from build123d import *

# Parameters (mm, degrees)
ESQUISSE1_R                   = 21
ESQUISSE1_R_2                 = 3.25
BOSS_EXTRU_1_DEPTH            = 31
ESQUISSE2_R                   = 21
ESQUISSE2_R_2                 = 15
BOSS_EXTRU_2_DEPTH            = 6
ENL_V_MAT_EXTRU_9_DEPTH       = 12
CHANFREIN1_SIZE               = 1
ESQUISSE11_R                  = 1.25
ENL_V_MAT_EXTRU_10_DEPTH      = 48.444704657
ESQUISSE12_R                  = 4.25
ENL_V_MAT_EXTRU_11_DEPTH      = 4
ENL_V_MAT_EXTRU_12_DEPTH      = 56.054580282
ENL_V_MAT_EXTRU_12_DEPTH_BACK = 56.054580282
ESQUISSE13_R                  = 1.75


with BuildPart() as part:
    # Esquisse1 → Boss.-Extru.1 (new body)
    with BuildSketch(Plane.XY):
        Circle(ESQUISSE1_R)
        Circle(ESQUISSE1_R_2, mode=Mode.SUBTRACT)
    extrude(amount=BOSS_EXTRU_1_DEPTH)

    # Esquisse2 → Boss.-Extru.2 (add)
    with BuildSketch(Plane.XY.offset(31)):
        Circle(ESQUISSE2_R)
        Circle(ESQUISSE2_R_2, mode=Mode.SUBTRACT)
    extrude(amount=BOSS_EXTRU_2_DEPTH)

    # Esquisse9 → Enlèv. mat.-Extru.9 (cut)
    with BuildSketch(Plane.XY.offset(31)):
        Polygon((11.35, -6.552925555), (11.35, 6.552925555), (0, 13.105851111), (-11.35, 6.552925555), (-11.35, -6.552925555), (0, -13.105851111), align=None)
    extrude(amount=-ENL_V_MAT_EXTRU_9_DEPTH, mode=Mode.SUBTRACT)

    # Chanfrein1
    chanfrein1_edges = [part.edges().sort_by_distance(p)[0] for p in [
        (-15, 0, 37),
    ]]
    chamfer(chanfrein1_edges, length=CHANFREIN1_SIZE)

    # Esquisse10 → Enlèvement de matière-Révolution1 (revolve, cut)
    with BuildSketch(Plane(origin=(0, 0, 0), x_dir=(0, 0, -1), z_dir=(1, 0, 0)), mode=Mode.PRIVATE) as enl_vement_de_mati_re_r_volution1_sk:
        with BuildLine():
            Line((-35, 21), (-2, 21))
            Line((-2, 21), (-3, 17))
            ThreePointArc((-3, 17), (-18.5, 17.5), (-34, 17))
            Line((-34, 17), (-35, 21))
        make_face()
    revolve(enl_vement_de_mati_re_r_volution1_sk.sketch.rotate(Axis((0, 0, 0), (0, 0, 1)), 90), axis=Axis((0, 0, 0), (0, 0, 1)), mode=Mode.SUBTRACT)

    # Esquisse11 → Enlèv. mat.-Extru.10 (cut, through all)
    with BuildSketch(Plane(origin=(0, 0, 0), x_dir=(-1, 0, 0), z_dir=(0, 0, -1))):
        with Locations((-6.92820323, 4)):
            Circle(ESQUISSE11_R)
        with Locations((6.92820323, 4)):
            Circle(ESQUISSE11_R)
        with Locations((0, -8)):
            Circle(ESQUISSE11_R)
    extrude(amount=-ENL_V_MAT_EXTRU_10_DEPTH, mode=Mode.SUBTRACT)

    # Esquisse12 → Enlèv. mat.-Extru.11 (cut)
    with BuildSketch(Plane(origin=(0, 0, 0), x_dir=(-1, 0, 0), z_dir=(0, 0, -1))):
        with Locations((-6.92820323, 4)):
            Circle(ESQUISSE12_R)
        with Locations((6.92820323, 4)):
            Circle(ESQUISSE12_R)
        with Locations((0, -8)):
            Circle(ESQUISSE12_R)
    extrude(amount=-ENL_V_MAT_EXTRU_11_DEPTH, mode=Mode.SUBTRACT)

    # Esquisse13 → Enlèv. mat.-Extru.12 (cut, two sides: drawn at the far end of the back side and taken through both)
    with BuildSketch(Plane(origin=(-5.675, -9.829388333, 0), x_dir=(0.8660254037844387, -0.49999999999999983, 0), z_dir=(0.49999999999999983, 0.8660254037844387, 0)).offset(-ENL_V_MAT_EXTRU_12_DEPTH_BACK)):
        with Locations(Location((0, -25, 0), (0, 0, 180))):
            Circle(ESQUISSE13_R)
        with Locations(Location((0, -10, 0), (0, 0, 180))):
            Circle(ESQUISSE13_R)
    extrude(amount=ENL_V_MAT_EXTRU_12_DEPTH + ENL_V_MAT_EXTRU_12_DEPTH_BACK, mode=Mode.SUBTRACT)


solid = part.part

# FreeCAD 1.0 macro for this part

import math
import FreeCAD as App
import Part
import Sketcher

V = App.Vector
Q = App.Units.Quantity


def edges_at(feature, points):
    """Names of the edges that pass closest to the given points."""
    edges = feature.Shape.Edges
    near = lambda p: min(range(len(edges)), key=lambda i: edges[i].distToShape(Part.Vertex(*p))[0])
    return sorted({f"Edge{near(p) + 1}" for p in points})


def add_polygon(sketch, points):
    """Adds a closed chain of lines whose ends are joined by coincident constraints."""
    first, n = sketch.GeometryCount, len(points)
    for a, b in zip(points, points[1:] + points[:1]):
        sketch.addGeometry(Part.LineSegment(App.Vector(*a, 0), App.Vector(*b, 0)), False)
    for i in range(n):
        sketch.addConstraint(Sketcher.Constraint("Coincident", first + i, 2, first + (i + 1) % n, 1))

doc = App.newDocument("Part")
body = doc.addObject("PartDesign::Body", "Body")

sketch1 = body.newObject("Sketcher::SketchObject", "Sketch")
sketch1.AttachmentSupport = (doc.getObject("XY_Plane"), [""])
sketch1.MapMode = "FlatFace"
sketch1.addGeometry(Part.Circle(V(0, 0, 0), V(0, 0, 1), 21), False)
sketch1.addGeometry(Part.Circle(V(0, 0, 0), V(0, 0, 1), 3.2), False)
sketch1.addConstraint(Sketcher.Constraint("Coincident", 0, 3, -1, 1))
sketch1.addConstraint(Sketcher.Constraint("Coincident", 1, 3, -1, 1))
sketch1.addConstraint(Sketcher.Constraint("Diameter", 0, Q("42 mm")))
sketch1.addConstraint(Sketcher.Constraint("Diameter", 1, Q("6.5 mm")))
pad1 = body.newObject("PartDesign::Pad", "Pad")
pad1.Profile = sketch1
pad1.Length = 31

sketch2 = body.newObject("Sketcher::SketchObject", "Sketch001")
sketch2.AttachmentSupport = (doc.getObject("XY_Plane"), [""])
sketch2.MapMode = "FlatFace"
sketch2.AttachmentOffset = App.Placement(V(0, 0, 31), App.Rotation())
sketch2.addGeometry(Part.Circle(V(0, 0, 0), V(0, 0, 1), 21), False)
sketch2.addGeometry(Part.Circle(V(0, 0, 0), V(0, 0, 1), 15), False)
sketch2.addConstraint(Sketcher.Constraint("Coincident", 0, 3, -1, 1))
sketch2.addConstraint(Sketcher.Constraint("Coincident", 1, 3, -1, 1))
sketch2.addConstraint(Sketcher.Constraint("Diameter", 0, Q("42 mm")))
sketch2.addConstraint(Sketcher.Constraint("Diameter", 1, Q("30 mm")))
pad2 = body.newObject("PartDesign::Pad", "Pad001")
pad2.Profile = sketch2
pad2.Length = 6

sketch3 = body.newObject("Sketcher::SketchObject", "Sketch002")
sketch3.AttachmentSupport = (doc.getObject("XY_Plane"), [""])
sketch3.MapMode = "FlatFace"
sketch3.AttachmentOffset = App.Placement(V(0, 0, 31), App.Rotation())
add_polygon(sketch3, [(11, -7), (11, 7), (0, 13), (-11, 7), (-11, -7), (0, -13)])
sketch3.addConstraint(Sketcher.Constraint("Vertical", 0))
sketch3.addConstraint(Sketcher.Constraint("Vertical", 3))
sketch3.addConstraint(Sketcher.Constraint("Symmetric", 0, 2, 3, 2, -1, 1))
sketch3.addConstraint(Sketcher.Constraint("Symmetric", 1, 2, 4, 2, -1, 1))
sketch3.addConstraint(Sketcher.Constraint("PointOnObject", 1, 2, -2))
sketch3.addConstraint(Sketcher.Constraint("Parallel", 2, 5))
sketch3.addConstraint(Sketcher.Constraint("Horizontal", 0, 2, 2, 2))
sketch3.addConstraint(Sketcher.Constraint("Angle", 1, Q("150 deg")))
sketch3.addConstraint(Sketcher.Constraint("DistanceX", 2, 2, 0, 2, Q("22.7 mm")))
sketch3.addConstraint(Sketcher.Constraint("DistanceY", 0, 1, 0, 2, Q("13.105851 mm")))
pocket1 = body.newObject("PartDesign::Pocket", "Pocket")
pocket1.Profile = sketch3
pocket1.Length = 12
doc.recompute()

chamfer = body.newObject("PartDesign::Chamfer", "Chamfer")
chamfer.Base = (pocket1, edges_at(pocket1, [(-15, 0, 37)]))
chamfer.Size = 1

sketch4 = body.newObject("Sketcher::SketchObject", "Sketch003")
sketch4.AttachmentSupport = (doc.getObject("YZ_Plane"), [""])
sketch4.MapMode = "FlatFace"
sketch4.addGeometry(Part.LineSegment(V(21, 2, 0), V(21, 35, 0)), False)
sketch4.addGeometry(Part.LineSegment(V(21, 35, 0), V(17, 34, 0)), False)
sketch4.addGeometry(Part.ArcOfCircle(Part.Circle(V(-223, 18.5, 0), V(0, 0, 1), 240.5), math.radians(-3.7), math.radians(3.7)), False)
sketch4.addGeometry(Part.LineSegment(V(17, 3, 0), V(21, 2, 0)), False)
sketch4.addConstraint(Sketcher.Constraint("Coincident", 0, 2, 1, 1))
sketch4.addConstraint(Sketcher.Constraint("Coincident", 1, 2, 2, 2))
sketch4.addConstraint(Sketcher.Constraint("Coincident", 2, 1, 3, 1))
sketch4.addConstraint(Sketcher.Constraint("Coincident", 3, 2, 0, 1))
sketch4.addConstraint(Sketcher.Constraint("Vertical", 0))
sketch4.addConstraint(Sketcher.Constraint("Vertical", 1, 2, 2, 1))
sketch4.addConstraint(Sketcher.Constraint("Equal", 1, 3))
sketch4.addConstraint(Sketcher.Constraint("Radius", 2, Q("240.5 mm")))
sketch4.addConstraint(Sketcher.Constraint("DistanceY", 0, 1, 0, 2, Q("33 mm")))
sketch4.addConstraint(Sketcher.Constraint("DistanceX", 2, 3, -1, 1, Q("223 mm")))
sketch4.addConstraint(Sketcher.Constraint("DistanceX", -1, 1, 0, 2, Q("21 mm")))
sketch4.addConstraint(Sketcher.Constraint("DistanceY", -1, 1, 0, 2, Q("35 mm")))
sketch4.addConstraint(Sketcher.Constraint("DistanceX", -1, 1, 1, 2, Q("17 mm")))
groove = body.newObject("PartDesign::Groove", "Groove")
groove.Profile = sketch4
groove.ReferenceAxis = (sketch4, ["V_Axis"])
groove.Angle = 360

sketch5 = body.newObject("Sketcher::SketchObject", "Sketch004")
sketch5.AttachmentSupport = (doc.getObject("XY_Plane"), [""])
sketch5.MapMode = "FlatFace"
sketch5.addGeometry(Part.Circle(V(6.9, 4, 0), V(0, 0, 1), 1.2), False)
sketch5.addGeometry(Part.Circle(V(-6.9, 4, 0), V(0, 0, 1), 1.2), False)
sketch5.addGeometry(Part.Circle(V(0, -8, 0), V(0, 0, 1), 1.2), False)
sketch5.addConstraint(Sketcher.Constraint("Equal", 0, 1))
sketch5.addConstraint(Sketcher.Constraint("Equal", 1, 2))
sketch5.addConstraint(Sketcher.Constraint("Symmetric", 0, 3, 1, 3, -2))
sketch5.addConstraint(Sketcher.Constraint("PointOnObject", 2, 3, -2))
sketch5.addConstraint(Sketcher.Constraint("Diameter", 0, Q("2.5 mm")))
sketch5.addConstraint(Sketcher.Constraint("DistanceY", -1, 1, 0, 3, Q("4 mm")))
sketch5.addConstraint(Sketcher.Constraint("DistanceY", 2, 3, -1, 1, Q("8 mm")))
sketch5.addConstraint(Sketcher.Constraint("DistanceX", -1, 1, 0, 3, Q("6.928203 mm")))
pocket2 = body.newObject("PartDesign::Pocket", "Pocket001")
pocket2.Profile = sketch5
pocket2.Type = "ThroughAll"
pocket2.Reversed = True

sketch6 = body.newObject("Sketcher::SketchObject", "Sketch005")
sketch6.AttachmentSupport = (doc.getObject("XY_Plane"), [""])
sketch6.MapMode = "FlatFace"
sketch6.addGeometry(Part.Circle(V(6.9, 4, 0), V(0, 0, 1), 4.2), False)
sketch6.addGeometry(Part.Circle(V(-6.9, 4, 0), V(0, 0, 1), 4.2), False)
sketch6.addGeometry(Part.Circle(V(0, -8, 0), V(0, 0, 1), 4.2), False)
sketch6.addConstraint(Sketcher.Constraint("Equal", 0, 1))
sketch6.addConstraint(Sketcher.Constraint("Equal", 1, 2))
sketch6.addConstraint(Sketcher.Constraint("Symmetric", 0, 3, 1, 3, -2))
sketch6.addConstraint(Sketcher.Constraint("PointOnObject", 2, 3, -2))
sketch6.addConstraint(Sketcher.Constraint("Diameter", 0, Q("8.5 mm")))
sketch6.addConstraint(Sketcher.Constraint("DistanceY", -1, 1, 0, 3, Q("4 mm")))
sketch6.addConstraint(Sketcher.Constraint("DistanceY", 2, 3, -1, 1, Q("8 mm")))
sketch6.addConstraint(Sketcher.Constraint("DistanceX", -1, 1, 0, 3, Q("6.928203 mm")))
pocket3 = body.newObject("PartDesign::Pocket", "Pocket002")
pocket3.Profile = sketch6
pocket3.Length = 4
pocket3.Reversed = True

sketch7 = body.newObject("Sketcher::SketchObject", "Sketch006")
sketch7.Placement = App.Placement(V(-5.675, -9.829388, 0), App.Rotation(V(0.866025404, -0.5, 0), V(0, 0, -1), V(0.5, 0.866025404, 0), "ZXY"))
sketch7.addGeometry(Part.Circle(V(0, -25, 0), V(0, 0, 1), 1.8), False)
sketch7.addGeometry(Part.Circle(V(0, -10, 0), V(0, 0, 1), 1.8), False)
sketch7.addConstraint(Sketcher.Constraint("Equal", 0, 1))
sketch7.addConstraint(Sketcher.Constraint("PointOnObject", 0, 3, -2))
sketch7.addConstraint(Sketcher.Constraint("PointOnObject", 1, 3, -2))
sketch7.addConstraint(Sketcher.Constraint("Diameter", 0, Q("3.5 mm")))
sketch7.addConstraint(Sketcher.Constraint("DistanceY", 0, 3, -1, 1, Q("25 mm")))
sketch7.addConstraint(Sketcher.Constraint("DistanceY", 1, 3, -1, 1, Q("10 mm")))
pocket4 = body.newObject("PartDesign::Pocket", "Pocket003")
pocket4.Profile = sketch7
pocket4.Type = "ThroughAll"
pocket4.Midplane = True

doc.recompute()
